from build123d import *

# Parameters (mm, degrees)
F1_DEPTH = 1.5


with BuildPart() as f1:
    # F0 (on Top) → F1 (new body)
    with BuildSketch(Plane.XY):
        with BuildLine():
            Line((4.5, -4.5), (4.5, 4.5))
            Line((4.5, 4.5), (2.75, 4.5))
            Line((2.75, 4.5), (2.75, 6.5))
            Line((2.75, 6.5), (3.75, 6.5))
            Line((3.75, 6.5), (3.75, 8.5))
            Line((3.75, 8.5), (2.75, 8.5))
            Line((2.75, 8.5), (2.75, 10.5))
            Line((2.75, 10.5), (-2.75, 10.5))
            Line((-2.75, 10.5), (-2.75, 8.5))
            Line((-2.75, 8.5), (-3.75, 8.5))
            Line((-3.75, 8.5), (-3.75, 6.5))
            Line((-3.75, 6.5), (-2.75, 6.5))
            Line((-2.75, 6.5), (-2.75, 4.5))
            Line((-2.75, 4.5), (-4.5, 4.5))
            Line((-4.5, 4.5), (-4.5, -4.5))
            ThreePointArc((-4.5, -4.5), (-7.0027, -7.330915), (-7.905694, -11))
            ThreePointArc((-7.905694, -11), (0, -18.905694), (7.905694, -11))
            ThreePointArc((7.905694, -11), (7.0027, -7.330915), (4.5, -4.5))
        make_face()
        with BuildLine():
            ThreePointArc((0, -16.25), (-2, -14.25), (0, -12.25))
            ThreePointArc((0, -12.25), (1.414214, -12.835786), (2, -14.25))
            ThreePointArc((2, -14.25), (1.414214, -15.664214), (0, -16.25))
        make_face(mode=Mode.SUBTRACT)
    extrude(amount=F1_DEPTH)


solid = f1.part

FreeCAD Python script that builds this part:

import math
import FreeCAD as App
import Part
import Sketcher
from FreeCAD import Vector
Q = App.Units.Quantity

doc = App.newDocument("Part")
body = doc.addObject("PartDesign::Body", "Body")

sketch1 = doc.addObject("Sketcher::SketchObject", "Sketch")
body.addObject(sketch1)
sketch1.AttachmentSupport = (doc.XY_Plane, [""])
sketch1.MapMode = "FlatFace"
sketch1.addGeometry(Part.LineSegment(Vector(4.5, -4.5, 0), Vector(4.5, 4.5, 0)), False)
sketch1.addGeometry(Part.LineSegment(Vector(4.5, 4.5, 0), Vector(2.8, 4.5, 0)), False)
sketch1.addGeometry(Part.LineSegment(Vector(2.8, 4.5, 0), Vector(2.8, 6.5, 0)), False)
sketch1.addGeometry(Part.LineSegment(Vector(2.8, 6.5, 0), Vector(3.8, 6.5, 0)), False)
sketch1.addGeometry(Part.LineSegment(Vector(3.8, 6.5, 0), Vector(3.8, 8.5, 0)), False)
sketch1.addGeometry(Part.LineSegment(Vector(3.8, 8.5, 0), Vector(2.8, 8.5, 0)), False)
sketch1.addGeometry(Part.LineSegment(Vector(2.8, 8.5, 0), Vector(2.8, 10.5, 0)), False)
sketch1.addGeometry(Part.LineSegment(Vector(2.8, 10.5, 0), Vector(-2.8, 10.5, 0)), False)
sketch1.addGeometry(Part.LineSegment(Vector(-2.8, 10.5, 0), Vector(-2.8, 8.5, 0)), False)
sketch1.addGeometry(Part.LineSegment(Vector(-2.8, 8.5, 0), Vector(-3.8, 8.5, 0)), False)
sketch1.addGeometry(Part.LineSegment(Vector(-3.8, 8.5, 0), Vector(-3.8, 6.5, 0)), False)
sketch1.addGeometry(Part.LineSegment(Vector(-3.8, 6.5, 0), Vector(-2.8, 6.5, 0)), False)
sketch1.addGeometry(Part.LineSegment(Vector(-2.8, 6.5, 0), Vector(-2.8, 4.5, 0)), False)
sketch1.addGeometry(Part.LineSegment(Vector(-2.8, 4.5, 0), Vector(-4.5, 4.5, 0)), False)
sketch1.addGeometry(Part.LineSegment(Vector(-4.5, 4.5, 0), Vector(-4.5, -4.5, 0)), False)
sketch1.addGeometry(Part.ArcOfCircle(Part.Circle(Vector(0, -11, 0), Vector(0, 0, 1), 7.9), math.radians(125), math.radians(180)), False)
sketch1.addGeometry(Part.ArcOfCircle(Part.Circle(Vector(0, -11, 0), Vector(0, 0, 1), 7.9), math.radians(180), math.radians(360)), False)
sketch1.addGeometry(Part.ArcOfCircle(Part.Circle(Vector(0, -11, 0), Vector(0, 0, 1), 7.9), math.radians(0), math.radians(55)), False)
sketch1.addGeometry(Part.ArcOfCircle(Part.Circle(Vector(0, -14.3, 0), Vector(0, 0, 1), 2), math.radians(-90), math.radians(0)), False)
sketch1.addGeometry(Part.ArcOfCircle(Part.Circle(Vector(0, -14.2, 0), Vector(0, 0, 1), 2), math.radians(90), math.radians(270)), False)
sketch1.addGeometry(Part.ArcOfCircle(Part.Circle(Vector(0, -14.2, 0), Vector(0, 0, 1), 2), math.radians(0), math.radians(90)), False)
sketch1.addConstraint(Sketcher.Constraint("Coincident", 0, 2, 1, 1))
sketch1.addConstraint(Sketcher.Constraint("Coincident", 1, 2, 2, 1))
sketch1.addConstraint(Sketcher.Constraint("Coincident", 2, 2, 3, 1))
sketch1.addConstraint(Sketcher.Constraint("Coincident", 3, 2, 4, 1))
sketch1.addConstraint(Sketcher.Constraint("Coincident", 4, 2, 5, 1))
sketch1.addConstraint(Sketcher.Constraint("Coincident", 5, 2, 6, 1))
sketch1.addConstraint(Sketcher.Constraint("Coincident", 6, 2, 7, 1))
sketch1.addConstraint(Sketcher.Constraint("Coincident", 7, 2, 8, 1))
sketch1.addConstraint(Sketcher.Constraint("Coincident", 8, 2, 9, 1))
sketch1.addConstraint(Sketcher.Constraint("Coincident", 9, 2, 10, 1))
sketch1.addConstraint(Sketcher.Constraint("Coincident", 10, 2, 11, 1))
sketch1.addConstraint(Sketcher.Constraint("Coincident", 11, 2, 12, 1))
sketch1.addConstraint(Sketcher.Constraint("Coincident", 12, 2, 13, 1))
sketch1.addConstraint(Sketcher.Constraint("Coincident", 13, 2, 14, 1))
sketch1.addConstraint(Sketcher.Constraint("Coincident", 14, 2, 15, 1))
sketch1.addConstraint(Sketcher.Constraint("Tangent", 15, 2, 16, 1))
sketch1.addConstraint(Sketcher.Constraint("Tangent", 16, 2, 17, 1))
sketch1.addConstraint(Sketcher.Constraint("Coincident", 17, 2, 0, 1))
sketch1.addConstraint(Sketcher.Constraint("Tangent", 18, 1, 19, 2))
sketch1.addConstraint(Sketcher.Constraint("Tangent", 19, 1, 20, 2))
sketch1.addConstraint(Sketcher.Constraint("Tangent", 20, 1, 18, 2))
sketch1.addConstraint(Sketcher.Constraint("Vertical", 0))
sketch1.addConstraint(Sketcher.Constraint("Horizontal", 1))
sketch1.addConstraint(Sketcher.Constraint("Vertical", 2))
sketch1.addConstraint(Sketcher.Constraint("Horizontal", 3))
sketch1.addConstraint(Sketcher.Constraint("Vertical", 4))
sketch1.addConstraint(Sketcher.Constraint("Horizontal", 5))
sketch1.addConstraint(Sketcher.Constraint("Vertical", 6))
sketch1.addConstraint(Sketcher.Constraint("Horizontal", 7))
sketch1.addConstraint(Sketcher.Constraint("Vertical", 8))
sketch1.addConstraint(Sketcher.Constraint("Horizontal", 9))
sketch1.addConstraint(Sketcher.Constraint("Vertical", 10))
sketch1.addConstraint(Sketcher.Constraint("Horizontal", 11))
sketch1.addConstraint(Sketcher.Constraint("Vertical", 12))
sketch1.addConstraint(Sketcher.Constraint("Horizontal", 13))
sketch1.addConstraint(Sketcher.Constraint("Vertical", 14))
sketch1.addConstraint(Sketcher.Constraint("Equal", 15, 17))
sketch1.addConstraint(Sketcher.Constraint("Symmetric", 0, 2, 14, 2, -1, 1))
sketch1.addConstraint(Sketcher.Constraint("Symmetric", 5, 2, 8, 2, -2))
sketch1.addConstraint(Sketcher.Constraint("Symmetric", 3, 2, 10, 2, -2))
sketch1.addConstraint(Sketcher.Constraint("Symmetric", 1, 2, 12, 2, -2))
sketch1.addConstraint(Sketcher.Constraint("Symmetric", 15, 2, 16, 2, -2))
sketch1.addConstraint(Sketcher.Constraint("PointOnObject", 18, 3, -2))
sketch1.addConstraint(Sketcher.Constraint("PointOnObject", 18, 1, -2))
sketch1.addConstraint(Sketcher.Constraint("PointOnObject", 19, 1, -2))
sketch1.addConstraint(Sketcher.Constraint("Horizontal", 17, 3, 15, 2))
sketch1.addConstraint(Sketcher.Constraint("Horizontal", 19, 3, 20, 1))
sketch1.addConstraint(Sketcher.Constraint("Vertical", 2, 2, 5, 2))
sketch1.addConstraint(Sketcher.Constraint("Equal", 2, 4))
sketch1.addConstraint(Sketcher.Constraint("Equal", 4, 6))
sketch1.addConstraint(Sketcher.Constraint("Radius", 18, Q("1.999999 mm")))
sketch1.addConstraint(Sketcher.Constraint("DistanceX", 3, 1, 3, 2, Q("1 mm")))
sketch1.addConstraint(Sketcher.Constraint("DistanceY", 0, 1, 0, 2, Q("9 mm")))
sketch1.addConstraint(Sketcher.Constraint("DistanceY", 2, 1, 2, 2, Q("2 mm")))
sketch1.addConstraint(Sketcher.Constraint("DistanceX", 7, 2, 7, 1, Q("5.5 mm")))
sketch1.addConstraint(Sketcher.Constraint("DistanceY", 15, 3, -1, 1, Q("11.000002 mm")))
sketch1.addConstraint(Sketcher.Constraint("DistanceX", 14, 2, 17, 2, Q("9 mm")))
sketch1.addConstraint(Sketcher.Constraint("DistanceY", 18, 3, -1, 1, Q("14.250001 mm")))
sketch1.addConstraint(Sketcher.Constraint("Radius", 15, Q("7.905697 mm")))
pad1 = doc.addObject("PartDesign::Pad", "Pad")
body.addObject(pad1)
pad1.Profile = sketch1
pad1.Length = 1.5

doc.recompute()
